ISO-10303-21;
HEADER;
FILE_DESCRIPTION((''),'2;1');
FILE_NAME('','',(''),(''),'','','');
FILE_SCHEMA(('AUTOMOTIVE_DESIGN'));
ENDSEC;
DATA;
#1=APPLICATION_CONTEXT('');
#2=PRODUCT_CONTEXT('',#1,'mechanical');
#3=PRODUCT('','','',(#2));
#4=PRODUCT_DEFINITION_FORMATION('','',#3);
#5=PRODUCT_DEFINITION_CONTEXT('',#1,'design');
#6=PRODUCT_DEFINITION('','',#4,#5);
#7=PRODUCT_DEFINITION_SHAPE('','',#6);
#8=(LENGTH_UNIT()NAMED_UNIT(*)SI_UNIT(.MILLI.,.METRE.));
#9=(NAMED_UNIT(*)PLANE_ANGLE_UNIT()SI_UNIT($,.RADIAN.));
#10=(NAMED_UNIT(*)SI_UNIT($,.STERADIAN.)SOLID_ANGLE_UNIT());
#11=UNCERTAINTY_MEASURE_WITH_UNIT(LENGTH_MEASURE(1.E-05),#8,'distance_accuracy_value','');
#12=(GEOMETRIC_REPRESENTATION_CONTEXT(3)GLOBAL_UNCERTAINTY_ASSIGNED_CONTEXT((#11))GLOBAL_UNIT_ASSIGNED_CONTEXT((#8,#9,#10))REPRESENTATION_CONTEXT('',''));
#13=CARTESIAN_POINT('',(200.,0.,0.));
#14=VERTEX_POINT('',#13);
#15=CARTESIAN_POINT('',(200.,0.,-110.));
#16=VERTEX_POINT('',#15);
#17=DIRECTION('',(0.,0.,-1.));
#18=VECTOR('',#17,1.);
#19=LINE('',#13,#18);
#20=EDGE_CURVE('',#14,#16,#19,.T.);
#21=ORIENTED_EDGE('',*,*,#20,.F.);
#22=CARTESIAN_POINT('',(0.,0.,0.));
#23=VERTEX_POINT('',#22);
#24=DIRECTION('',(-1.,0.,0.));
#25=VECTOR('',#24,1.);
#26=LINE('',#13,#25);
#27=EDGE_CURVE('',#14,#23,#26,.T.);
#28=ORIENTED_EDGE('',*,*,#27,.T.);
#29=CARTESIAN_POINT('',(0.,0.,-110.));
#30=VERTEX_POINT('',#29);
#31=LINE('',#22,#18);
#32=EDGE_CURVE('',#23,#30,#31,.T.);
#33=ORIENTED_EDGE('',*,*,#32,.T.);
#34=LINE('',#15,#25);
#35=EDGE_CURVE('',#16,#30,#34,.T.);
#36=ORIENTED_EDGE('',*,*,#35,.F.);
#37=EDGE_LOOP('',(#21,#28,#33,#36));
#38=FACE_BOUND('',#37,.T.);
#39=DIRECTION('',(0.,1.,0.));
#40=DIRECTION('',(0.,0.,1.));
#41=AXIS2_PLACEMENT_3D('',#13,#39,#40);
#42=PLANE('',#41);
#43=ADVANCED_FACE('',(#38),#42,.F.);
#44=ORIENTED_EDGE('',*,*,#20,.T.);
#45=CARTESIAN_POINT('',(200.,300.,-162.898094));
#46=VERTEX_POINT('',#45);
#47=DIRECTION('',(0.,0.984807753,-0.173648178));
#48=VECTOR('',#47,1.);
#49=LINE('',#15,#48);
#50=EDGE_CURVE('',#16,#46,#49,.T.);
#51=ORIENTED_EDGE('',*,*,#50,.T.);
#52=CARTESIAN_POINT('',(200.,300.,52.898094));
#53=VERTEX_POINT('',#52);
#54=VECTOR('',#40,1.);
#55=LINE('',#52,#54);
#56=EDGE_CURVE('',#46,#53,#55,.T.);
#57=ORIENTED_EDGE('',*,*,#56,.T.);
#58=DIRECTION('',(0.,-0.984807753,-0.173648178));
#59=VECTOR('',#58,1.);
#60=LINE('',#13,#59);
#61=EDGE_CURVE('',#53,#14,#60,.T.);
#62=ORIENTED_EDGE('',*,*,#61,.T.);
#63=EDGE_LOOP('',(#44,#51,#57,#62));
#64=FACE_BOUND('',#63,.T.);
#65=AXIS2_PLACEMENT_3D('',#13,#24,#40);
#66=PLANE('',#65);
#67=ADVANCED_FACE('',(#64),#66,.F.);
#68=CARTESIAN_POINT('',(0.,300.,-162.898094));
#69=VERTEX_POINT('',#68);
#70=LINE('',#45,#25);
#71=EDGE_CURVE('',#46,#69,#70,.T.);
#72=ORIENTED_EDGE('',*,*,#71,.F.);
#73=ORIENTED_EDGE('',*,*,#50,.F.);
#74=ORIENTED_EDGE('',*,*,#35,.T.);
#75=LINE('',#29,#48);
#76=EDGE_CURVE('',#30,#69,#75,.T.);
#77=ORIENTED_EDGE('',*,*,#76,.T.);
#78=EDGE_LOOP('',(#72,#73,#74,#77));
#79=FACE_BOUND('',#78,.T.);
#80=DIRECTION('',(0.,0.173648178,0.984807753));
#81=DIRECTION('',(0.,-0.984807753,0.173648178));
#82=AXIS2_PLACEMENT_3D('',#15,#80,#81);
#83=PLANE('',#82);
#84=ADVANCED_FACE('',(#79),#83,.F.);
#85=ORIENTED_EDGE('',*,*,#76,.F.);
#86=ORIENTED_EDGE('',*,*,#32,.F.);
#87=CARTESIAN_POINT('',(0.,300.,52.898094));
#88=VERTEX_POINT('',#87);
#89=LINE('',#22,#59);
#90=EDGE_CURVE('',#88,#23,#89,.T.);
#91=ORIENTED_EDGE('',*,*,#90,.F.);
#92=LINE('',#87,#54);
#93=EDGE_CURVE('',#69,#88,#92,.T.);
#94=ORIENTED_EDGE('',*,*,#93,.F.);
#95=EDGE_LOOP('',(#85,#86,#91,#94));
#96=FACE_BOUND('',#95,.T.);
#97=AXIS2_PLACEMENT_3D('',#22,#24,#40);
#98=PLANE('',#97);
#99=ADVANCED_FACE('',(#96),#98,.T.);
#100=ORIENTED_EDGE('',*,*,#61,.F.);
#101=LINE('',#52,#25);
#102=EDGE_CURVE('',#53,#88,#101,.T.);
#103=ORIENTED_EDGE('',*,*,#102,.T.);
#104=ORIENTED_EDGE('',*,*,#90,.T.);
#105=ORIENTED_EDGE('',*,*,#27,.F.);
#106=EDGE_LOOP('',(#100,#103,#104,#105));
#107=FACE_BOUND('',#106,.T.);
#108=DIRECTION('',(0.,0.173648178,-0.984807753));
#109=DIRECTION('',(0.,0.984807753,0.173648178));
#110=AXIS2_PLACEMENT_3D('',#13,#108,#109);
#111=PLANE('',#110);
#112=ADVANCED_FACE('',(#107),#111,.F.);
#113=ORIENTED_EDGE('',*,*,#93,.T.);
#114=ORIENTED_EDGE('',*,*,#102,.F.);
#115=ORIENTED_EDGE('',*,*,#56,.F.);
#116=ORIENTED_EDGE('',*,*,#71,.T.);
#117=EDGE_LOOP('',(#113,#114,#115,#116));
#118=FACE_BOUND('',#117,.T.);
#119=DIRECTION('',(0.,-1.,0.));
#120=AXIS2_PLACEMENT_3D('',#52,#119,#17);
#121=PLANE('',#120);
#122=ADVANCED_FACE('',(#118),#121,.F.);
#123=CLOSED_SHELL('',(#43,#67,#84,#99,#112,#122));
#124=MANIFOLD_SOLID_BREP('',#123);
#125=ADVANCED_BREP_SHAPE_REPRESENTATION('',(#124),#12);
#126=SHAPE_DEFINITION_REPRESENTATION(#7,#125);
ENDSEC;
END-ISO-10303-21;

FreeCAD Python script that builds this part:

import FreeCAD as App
import Part
import Sketcher
Q = App.Units.Quantity


def add_polygon(sketch, points):
    """Adds a closed chain of lines whose ends are joined by coincident constraints."""
    first, n = sketch.GeometryCount, len(points)
    for a, b in zip(points, points[1:] + points[:1]):
        sketch.addGeometry(Part.LineSegment(App.Vector(*a, 0), App.Vector(*b, 0)), False)
    for i in range(n):
        sketch.addConstraint(Sketcher.Constraint("Coincident", first + i, 2, first + (i + 1) % n, 1))

doc = App.newDocument("Part")
params = doc.addObject("Spreadsheet::Sheet", "Params")
for row, (alias, value) in enumerate([
    ("sketch1_height", "110 mm"),
    ("pad1_length", "200 mm"),
], start=1):
    params.set(f"A{row}", alias)
    params.set(f"B{row}", "=" + value)
    params.setAlias(f"B{row}", alias)

body = doc.addObject("PartDesign::Body", "Body")

sketch1 = body.newObject("Sketcher::SketchObject", "Sketch")
sketch1.AttachmentSupport = (doc.getObject("YZ_Plane"), [""])
sketch1.MapMode = "FlatFace"
add_polygon(sketch1, [(0, 0), (0, -110), (300, -162.898094), (300, 52.898094)])
sketch1.addConstraint(Sketcher.Constraint("Vertical", 0))
sketch1.addConstraint(Sketcher.Constraint("Vertical", 2))
sketch1.addConstraint(Sketcher.Constraint("Coincident", 3, 2, -1, 1))
sketch1.addConstraint(Sketcher.Constraint("Equal", 1, 3))
sketch1.addConstraint(Sketcher.Constraint("DistanceY", 0, 2, 0, 1, 110.0))
sketch1.addConstraint(Sketcher.Constraint("Angle", 1, Q("-10 deg")))
sketch1.addConstraint(Sketcher.Constraint("DistanceX", -1, 1, 1, 2, 300.0))
sketch1.setExpression("Constraints[8]", "Params.sketch1_height")
pad1 = body.newObject("PartDesign::Pad", "Pad")
pad1.Profile = sketch1
pad1.setExpression("Length", "Params.pad1_length")

doc.recompute()
